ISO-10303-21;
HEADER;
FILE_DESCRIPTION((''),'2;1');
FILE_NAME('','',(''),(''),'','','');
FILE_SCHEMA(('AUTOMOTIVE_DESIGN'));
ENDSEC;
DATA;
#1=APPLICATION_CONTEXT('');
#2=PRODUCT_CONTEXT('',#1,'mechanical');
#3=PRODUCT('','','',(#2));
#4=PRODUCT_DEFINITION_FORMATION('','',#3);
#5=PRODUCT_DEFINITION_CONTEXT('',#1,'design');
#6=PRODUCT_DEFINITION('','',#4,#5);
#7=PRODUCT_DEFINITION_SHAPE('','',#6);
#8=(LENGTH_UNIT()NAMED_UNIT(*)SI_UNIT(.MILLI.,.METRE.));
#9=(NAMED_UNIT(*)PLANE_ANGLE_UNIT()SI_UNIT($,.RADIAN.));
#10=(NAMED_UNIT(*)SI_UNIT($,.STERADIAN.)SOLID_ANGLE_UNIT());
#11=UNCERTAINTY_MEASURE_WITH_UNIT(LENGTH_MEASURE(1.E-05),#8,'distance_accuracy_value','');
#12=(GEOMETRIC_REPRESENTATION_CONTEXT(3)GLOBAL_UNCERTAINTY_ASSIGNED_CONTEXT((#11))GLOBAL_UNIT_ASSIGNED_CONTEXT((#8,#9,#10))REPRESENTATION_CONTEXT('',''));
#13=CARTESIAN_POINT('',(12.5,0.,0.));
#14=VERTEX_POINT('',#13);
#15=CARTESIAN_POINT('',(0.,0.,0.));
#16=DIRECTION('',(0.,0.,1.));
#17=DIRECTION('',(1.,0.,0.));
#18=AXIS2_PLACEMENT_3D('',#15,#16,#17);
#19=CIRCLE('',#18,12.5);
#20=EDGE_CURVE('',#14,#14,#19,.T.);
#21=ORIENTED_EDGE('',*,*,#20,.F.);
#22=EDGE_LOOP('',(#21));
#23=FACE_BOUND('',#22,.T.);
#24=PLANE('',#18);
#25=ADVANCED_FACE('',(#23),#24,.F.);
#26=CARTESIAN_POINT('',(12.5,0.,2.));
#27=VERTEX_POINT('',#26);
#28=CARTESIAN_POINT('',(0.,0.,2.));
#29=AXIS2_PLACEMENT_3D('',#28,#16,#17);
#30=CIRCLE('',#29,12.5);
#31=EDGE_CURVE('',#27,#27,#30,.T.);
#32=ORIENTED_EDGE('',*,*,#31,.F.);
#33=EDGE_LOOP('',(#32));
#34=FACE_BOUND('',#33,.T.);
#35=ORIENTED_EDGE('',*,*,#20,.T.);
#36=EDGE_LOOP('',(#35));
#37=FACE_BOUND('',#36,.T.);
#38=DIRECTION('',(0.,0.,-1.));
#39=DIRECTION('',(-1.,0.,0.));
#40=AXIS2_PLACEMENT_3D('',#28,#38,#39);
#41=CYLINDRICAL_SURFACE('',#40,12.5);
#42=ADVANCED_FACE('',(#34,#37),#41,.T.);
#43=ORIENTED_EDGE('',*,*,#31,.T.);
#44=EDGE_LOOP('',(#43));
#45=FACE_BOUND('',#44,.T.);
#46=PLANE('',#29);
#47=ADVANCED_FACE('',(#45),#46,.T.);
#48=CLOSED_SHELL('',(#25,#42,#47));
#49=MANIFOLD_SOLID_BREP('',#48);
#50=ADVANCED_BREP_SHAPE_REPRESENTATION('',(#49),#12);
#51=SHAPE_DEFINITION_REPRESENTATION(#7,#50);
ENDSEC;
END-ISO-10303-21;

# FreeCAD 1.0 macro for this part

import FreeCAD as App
import Part
import Sketcher

doc = App.newDocument("Part")
params = doc.addObject("Spreadsheet::Sheet", "Params")
for row, (alias, value) in enumerate([
    ("sketch1_diameter", "25 mm"),
    ("pad1_length", "2 mm"),
], start=1):
    params.set(f"A{row}", alias)
    params.set(f"B{row}", "=" + value)
    params.setAlias(f"B{row}", alias)

body = doc.addObject("PartDesign::Body", "Body")

# Sketch on XY plane
sketch1 = body.newObject("Sketcher::SketchObject", "Sketch")
sketch1.AttachmentSupport = (doc.getObject("XY_Plane"), [""])
sketch1.MapMode = "FlatFace"
sketch1.addGeometry(Part.Circle(App.Vector(0, 0, 0), App.Vector(0, 0, 1), 12), False)
sketch1.addConstraint(Sketcher.Constraint("Coincident", 0, 3, -1, 1))
sketch1.addConstraint(Sketcher.Constraint("Diameter", 0, 25.0))
sketch1.setExpression("Constraints[1]", "Params.sketch1_diameter")
pad1 = body.newObject("PartDesign::Pad", "Pad")
pad1.Profile = sketch1
pad1.setExpression("Length", "Params.pad1_length")

doc.recompute()
